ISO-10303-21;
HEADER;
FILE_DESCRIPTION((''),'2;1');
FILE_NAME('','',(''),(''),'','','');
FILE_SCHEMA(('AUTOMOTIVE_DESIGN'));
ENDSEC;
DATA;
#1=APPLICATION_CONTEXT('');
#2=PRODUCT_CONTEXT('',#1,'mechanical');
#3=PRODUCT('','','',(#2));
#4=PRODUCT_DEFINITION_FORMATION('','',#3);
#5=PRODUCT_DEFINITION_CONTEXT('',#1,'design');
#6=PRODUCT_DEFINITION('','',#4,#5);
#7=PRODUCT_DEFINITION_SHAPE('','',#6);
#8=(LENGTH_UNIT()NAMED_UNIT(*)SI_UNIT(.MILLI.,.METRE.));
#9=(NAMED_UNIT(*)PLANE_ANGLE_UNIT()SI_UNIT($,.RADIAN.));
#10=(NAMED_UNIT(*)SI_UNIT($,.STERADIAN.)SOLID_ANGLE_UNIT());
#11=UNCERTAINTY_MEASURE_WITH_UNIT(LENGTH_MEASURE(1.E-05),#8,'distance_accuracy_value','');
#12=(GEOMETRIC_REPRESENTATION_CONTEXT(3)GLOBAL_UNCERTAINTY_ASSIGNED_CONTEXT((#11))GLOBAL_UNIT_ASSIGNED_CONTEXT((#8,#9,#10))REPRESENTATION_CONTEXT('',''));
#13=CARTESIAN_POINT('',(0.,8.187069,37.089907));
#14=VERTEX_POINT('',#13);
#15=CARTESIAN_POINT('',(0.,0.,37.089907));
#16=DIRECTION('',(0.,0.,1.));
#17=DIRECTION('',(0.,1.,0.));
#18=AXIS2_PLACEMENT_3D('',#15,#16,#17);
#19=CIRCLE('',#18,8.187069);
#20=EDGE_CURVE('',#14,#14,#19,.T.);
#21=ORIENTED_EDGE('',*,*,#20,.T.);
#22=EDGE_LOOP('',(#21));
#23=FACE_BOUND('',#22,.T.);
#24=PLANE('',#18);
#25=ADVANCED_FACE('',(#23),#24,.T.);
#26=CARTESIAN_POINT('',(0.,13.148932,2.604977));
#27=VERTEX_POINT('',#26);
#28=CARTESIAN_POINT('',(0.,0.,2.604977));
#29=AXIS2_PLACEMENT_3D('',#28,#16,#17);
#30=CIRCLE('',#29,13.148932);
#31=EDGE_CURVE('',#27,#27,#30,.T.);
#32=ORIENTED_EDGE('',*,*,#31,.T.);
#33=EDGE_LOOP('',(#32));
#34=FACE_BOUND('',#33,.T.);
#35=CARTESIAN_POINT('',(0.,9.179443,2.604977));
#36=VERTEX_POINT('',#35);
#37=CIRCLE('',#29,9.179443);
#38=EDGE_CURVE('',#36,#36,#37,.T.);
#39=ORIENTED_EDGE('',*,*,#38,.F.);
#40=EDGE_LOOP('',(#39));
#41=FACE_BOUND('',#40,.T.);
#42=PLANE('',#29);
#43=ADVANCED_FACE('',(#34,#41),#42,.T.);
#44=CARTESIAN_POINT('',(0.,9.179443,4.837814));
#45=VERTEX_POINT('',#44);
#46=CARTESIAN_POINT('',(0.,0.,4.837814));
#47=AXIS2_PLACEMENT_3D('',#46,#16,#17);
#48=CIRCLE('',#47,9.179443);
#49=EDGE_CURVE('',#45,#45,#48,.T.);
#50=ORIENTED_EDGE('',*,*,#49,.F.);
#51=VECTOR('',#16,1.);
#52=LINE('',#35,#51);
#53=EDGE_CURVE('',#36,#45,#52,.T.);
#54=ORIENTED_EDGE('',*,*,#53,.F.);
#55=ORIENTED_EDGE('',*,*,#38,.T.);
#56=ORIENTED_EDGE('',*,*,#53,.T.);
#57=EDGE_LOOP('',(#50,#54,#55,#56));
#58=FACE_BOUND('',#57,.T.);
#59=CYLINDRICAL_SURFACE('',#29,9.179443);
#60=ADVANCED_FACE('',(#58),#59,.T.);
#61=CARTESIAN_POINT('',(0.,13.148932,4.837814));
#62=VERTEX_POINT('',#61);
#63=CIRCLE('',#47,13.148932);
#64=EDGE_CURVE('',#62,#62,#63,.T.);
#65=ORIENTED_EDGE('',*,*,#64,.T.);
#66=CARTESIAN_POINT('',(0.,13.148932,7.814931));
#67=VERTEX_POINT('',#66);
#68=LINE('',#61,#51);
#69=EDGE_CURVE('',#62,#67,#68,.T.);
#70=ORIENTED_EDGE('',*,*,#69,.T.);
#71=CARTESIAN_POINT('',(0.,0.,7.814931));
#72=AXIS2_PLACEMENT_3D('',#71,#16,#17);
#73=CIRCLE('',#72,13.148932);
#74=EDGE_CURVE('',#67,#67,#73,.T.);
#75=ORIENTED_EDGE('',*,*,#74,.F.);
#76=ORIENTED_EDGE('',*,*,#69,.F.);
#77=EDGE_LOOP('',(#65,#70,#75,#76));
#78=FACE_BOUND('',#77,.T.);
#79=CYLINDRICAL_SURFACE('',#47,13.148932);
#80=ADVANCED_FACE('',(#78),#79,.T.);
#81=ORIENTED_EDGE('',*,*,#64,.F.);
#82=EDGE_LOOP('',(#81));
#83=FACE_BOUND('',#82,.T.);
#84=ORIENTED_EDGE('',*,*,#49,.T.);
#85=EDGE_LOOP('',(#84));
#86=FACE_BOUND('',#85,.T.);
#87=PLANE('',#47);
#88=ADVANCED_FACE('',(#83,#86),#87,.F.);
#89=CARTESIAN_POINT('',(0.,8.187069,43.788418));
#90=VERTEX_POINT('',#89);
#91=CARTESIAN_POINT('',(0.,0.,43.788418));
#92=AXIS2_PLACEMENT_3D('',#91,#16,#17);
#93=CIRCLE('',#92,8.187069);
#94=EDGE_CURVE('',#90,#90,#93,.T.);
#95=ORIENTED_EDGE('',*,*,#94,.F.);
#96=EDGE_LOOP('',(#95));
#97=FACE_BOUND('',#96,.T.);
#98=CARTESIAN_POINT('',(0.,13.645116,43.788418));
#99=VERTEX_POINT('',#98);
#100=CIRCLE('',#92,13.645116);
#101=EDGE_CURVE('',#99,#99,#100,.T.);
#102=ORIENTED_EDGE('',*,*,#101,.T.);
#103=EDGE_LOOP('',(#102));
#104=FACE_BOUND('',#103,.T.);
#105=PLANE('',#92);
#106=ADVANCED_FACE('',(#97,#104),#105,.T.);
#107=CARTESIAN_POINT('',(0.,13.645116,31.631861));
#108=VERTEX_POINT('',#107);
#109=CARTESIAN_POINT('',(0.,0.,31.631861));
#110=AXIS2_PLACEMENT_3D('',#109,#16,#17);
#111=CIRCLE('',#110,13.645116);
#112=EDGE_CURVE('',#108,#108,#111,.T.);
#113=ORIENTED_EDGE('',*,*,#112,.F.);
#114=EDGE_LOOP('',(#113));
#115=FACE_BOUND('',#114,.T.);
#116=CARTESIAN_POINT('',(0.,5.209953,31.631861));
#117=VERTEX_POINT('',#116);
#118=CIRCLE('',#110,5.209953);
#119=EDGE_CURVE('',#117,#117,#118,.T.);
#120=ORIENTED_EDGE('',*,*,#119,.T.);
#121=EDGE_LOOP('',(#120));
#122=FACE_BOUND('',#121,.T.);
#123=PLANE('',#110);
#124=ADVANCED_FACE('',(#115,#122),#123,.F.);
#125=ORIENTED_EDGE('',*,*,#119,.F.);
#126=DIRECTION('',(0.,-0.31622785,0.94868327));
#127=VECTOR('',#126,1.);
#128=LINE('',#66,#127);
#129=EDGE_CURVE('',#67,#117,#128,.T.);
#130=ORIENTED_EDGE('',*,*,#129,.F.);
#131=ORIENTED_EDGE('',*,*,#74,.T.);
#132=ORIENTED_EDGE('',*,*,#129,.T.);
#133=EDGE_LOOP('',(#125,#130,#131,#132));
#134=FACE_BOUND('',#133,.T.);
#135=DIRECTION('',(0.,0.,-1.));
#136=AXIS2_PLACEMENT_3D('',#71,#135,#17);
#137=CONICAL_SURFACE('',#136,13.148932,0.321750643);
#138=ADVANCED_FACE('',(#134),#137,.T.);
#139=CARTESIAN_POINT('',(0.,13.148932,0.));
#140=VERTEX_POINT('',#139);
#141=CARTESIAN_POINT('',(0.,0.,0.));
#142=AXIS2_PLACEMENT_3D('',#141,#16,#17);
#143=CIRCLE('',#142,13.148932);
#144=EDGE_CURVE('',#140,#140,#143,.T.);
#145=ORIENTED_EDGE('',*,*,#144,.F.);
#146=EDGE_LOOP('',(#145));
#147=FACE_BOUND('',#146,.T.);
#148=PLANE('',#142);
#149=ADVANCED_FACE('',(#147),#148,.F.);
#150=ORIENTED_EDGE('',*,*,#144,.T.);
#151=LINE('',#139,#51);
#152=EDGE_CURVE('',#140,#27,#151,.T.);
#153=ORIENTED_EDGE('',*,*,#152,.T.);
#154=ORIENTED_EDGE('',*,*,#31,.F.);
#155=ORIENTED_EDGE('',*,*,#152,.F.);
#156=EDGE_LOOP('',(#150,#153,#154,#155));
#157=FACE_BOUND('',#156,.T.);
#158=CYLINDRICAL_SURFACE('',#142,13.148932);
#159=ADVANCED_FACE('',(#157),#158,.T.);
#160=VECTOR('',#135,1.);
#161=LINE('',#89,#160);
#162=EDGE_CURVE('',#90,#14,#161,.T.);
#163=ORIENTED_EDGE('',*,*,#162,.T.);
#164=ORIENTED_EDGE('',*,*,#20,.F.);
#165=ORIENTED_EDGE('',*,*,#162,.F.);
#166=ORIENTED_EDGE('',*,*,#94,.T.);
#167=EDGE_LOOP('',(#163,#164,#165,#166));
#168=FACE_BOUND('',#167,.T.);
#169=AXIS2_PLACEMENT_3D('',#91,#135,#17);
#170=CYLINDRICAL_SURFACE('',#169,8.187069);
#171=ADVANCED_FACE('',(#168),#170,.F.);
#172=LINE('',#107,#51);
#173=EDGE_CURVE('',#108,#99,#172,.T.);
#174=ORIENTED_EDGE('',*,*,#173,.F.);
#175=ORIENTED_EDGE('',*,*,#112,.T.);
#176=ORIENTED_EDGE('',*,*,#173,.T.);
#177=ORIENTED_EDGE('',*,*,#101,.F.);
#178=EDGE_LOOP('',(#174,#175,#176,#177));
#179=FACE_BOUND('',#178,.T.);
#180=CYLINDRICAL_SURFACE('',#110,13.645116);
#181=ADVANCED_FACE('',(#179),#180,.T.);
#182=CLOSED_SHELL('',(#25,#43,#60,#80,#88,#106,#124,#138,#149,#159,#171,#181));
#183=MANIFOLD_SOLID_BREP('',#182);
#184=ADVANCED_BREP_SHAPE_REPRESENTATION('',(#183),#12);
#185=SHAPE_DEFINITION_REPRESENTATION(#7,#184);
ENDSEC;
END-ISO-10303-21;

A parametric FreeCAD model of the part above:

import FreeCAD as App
import Part
import Sketcher
from FreeCAD import Vector


def add_polygon(sketch, points):
    """Adds a closed chain of lines whose ends are joined by coincident constraints."""
    first, n = sketch.GeometryCount, len(points)
    for a, b in zip(points, points[1:] + points[:1]):
        sketch.addGeometry(Part.LineSegment(App.Vector(*a, 0), App.Vector(*b, 0)), False)
    for i in range(n):
        sketch.addConstraint(Sketcher.Constraint("Coincident", first + i, 2, first + (i + 1) % n, 1))

doc = App.newDocument("Part")
body = doc.addObject("PartDesign::Body", "Body")

sketch1 = body.newObject("Sketcher::SketchObject", "Sketch")
sketch1.AttachmentSupport = (doc.getObject("YZ_Plane"), [""])
sketch1.MapMode = "FlatFace"
add_polygon(sketch1, [(0, 37.089907), (0, 0), (13.148932, 0), (13.148932, 2.604977), (9.179443, 2.604977), (9.179443, 4.837814), (13.148932, 4.837814), (13.148932, 7.814931), (5.209953, 31.631861), (13.645116, 31.631861), (13.645116, 43.788418), (8.187069, 43.788418), (8.187069, 37.089907)])
sketch1.addConstraint([
    Sketcher.Constraint("Vertical", 0),
    Sketcher.Constraint("Horizontal", 1),
    Sketcher.Constraint("Vertical", 2),
    Sketcher.Constraint("Horizontal", 3),
    Sketcher.Constraint("Vertical", 4),
    Sketcher.Constraint("Horizontal", 5),
    Sketcher.Constraint("Vertical", 6),
    Sketcher.Constraint("Horizontal", 8),
    Sketcher.Constraint("Vertical", 9),
    Sketcher.Constraint("Horizontal", 10),
    Sketcher.Constraint("Vertical", 11),
    Sketcher.Constraint("Horizontal", 12),
    Sketcher.Constraint("Coincident", 0, 2, -1, 1),
    Sketcher.Constraint("Vertical", 2, 2, 5, 2),
    Sketcher.Constraint("DistanceX", 3, 2, 3, 1, 3.969489),
    Sketcher.Constraint("DistanceX", 12, 2, 12, 1, 8.187069),
    Sketcher.Constraint("DistanceY", 11, 2, 11, 1, 6.698511),
    Sketcher.Constraint("Distance", 7, 25.105249),
    Sketcher.Constraint("DistanceX", 1, 1, 1, 2, 13.148932),
    Sketcher.Constraint("DistanceX", 8, 1, 8, 2, 8.435163),
    Sketcher.Constraint("DistanceX", 10, 2, 10, 1, 5.458047),
    Sketcher.Constraint("DistanceY", 0, 2, 0, 1, 37.089907),
    Sketcher.Constraint("DistanceY", 2, 1, 2, 2, 2.604977),
    Sketcher.Constraint("DistanceY", 4, 1, 4, 2, 2.232837),
    Sketcher.Constraint("DistanceY", 6, 1, 6, 2, 2.977117),
])
revolution = body.newObject("PartDesign::Revolution", "Revolution")
revolution.Profile = sketch1
revolution.ReferenceAxis = (sketch1, ["V_Axis"])
revolution.Angle = 360

doc.recompute()
